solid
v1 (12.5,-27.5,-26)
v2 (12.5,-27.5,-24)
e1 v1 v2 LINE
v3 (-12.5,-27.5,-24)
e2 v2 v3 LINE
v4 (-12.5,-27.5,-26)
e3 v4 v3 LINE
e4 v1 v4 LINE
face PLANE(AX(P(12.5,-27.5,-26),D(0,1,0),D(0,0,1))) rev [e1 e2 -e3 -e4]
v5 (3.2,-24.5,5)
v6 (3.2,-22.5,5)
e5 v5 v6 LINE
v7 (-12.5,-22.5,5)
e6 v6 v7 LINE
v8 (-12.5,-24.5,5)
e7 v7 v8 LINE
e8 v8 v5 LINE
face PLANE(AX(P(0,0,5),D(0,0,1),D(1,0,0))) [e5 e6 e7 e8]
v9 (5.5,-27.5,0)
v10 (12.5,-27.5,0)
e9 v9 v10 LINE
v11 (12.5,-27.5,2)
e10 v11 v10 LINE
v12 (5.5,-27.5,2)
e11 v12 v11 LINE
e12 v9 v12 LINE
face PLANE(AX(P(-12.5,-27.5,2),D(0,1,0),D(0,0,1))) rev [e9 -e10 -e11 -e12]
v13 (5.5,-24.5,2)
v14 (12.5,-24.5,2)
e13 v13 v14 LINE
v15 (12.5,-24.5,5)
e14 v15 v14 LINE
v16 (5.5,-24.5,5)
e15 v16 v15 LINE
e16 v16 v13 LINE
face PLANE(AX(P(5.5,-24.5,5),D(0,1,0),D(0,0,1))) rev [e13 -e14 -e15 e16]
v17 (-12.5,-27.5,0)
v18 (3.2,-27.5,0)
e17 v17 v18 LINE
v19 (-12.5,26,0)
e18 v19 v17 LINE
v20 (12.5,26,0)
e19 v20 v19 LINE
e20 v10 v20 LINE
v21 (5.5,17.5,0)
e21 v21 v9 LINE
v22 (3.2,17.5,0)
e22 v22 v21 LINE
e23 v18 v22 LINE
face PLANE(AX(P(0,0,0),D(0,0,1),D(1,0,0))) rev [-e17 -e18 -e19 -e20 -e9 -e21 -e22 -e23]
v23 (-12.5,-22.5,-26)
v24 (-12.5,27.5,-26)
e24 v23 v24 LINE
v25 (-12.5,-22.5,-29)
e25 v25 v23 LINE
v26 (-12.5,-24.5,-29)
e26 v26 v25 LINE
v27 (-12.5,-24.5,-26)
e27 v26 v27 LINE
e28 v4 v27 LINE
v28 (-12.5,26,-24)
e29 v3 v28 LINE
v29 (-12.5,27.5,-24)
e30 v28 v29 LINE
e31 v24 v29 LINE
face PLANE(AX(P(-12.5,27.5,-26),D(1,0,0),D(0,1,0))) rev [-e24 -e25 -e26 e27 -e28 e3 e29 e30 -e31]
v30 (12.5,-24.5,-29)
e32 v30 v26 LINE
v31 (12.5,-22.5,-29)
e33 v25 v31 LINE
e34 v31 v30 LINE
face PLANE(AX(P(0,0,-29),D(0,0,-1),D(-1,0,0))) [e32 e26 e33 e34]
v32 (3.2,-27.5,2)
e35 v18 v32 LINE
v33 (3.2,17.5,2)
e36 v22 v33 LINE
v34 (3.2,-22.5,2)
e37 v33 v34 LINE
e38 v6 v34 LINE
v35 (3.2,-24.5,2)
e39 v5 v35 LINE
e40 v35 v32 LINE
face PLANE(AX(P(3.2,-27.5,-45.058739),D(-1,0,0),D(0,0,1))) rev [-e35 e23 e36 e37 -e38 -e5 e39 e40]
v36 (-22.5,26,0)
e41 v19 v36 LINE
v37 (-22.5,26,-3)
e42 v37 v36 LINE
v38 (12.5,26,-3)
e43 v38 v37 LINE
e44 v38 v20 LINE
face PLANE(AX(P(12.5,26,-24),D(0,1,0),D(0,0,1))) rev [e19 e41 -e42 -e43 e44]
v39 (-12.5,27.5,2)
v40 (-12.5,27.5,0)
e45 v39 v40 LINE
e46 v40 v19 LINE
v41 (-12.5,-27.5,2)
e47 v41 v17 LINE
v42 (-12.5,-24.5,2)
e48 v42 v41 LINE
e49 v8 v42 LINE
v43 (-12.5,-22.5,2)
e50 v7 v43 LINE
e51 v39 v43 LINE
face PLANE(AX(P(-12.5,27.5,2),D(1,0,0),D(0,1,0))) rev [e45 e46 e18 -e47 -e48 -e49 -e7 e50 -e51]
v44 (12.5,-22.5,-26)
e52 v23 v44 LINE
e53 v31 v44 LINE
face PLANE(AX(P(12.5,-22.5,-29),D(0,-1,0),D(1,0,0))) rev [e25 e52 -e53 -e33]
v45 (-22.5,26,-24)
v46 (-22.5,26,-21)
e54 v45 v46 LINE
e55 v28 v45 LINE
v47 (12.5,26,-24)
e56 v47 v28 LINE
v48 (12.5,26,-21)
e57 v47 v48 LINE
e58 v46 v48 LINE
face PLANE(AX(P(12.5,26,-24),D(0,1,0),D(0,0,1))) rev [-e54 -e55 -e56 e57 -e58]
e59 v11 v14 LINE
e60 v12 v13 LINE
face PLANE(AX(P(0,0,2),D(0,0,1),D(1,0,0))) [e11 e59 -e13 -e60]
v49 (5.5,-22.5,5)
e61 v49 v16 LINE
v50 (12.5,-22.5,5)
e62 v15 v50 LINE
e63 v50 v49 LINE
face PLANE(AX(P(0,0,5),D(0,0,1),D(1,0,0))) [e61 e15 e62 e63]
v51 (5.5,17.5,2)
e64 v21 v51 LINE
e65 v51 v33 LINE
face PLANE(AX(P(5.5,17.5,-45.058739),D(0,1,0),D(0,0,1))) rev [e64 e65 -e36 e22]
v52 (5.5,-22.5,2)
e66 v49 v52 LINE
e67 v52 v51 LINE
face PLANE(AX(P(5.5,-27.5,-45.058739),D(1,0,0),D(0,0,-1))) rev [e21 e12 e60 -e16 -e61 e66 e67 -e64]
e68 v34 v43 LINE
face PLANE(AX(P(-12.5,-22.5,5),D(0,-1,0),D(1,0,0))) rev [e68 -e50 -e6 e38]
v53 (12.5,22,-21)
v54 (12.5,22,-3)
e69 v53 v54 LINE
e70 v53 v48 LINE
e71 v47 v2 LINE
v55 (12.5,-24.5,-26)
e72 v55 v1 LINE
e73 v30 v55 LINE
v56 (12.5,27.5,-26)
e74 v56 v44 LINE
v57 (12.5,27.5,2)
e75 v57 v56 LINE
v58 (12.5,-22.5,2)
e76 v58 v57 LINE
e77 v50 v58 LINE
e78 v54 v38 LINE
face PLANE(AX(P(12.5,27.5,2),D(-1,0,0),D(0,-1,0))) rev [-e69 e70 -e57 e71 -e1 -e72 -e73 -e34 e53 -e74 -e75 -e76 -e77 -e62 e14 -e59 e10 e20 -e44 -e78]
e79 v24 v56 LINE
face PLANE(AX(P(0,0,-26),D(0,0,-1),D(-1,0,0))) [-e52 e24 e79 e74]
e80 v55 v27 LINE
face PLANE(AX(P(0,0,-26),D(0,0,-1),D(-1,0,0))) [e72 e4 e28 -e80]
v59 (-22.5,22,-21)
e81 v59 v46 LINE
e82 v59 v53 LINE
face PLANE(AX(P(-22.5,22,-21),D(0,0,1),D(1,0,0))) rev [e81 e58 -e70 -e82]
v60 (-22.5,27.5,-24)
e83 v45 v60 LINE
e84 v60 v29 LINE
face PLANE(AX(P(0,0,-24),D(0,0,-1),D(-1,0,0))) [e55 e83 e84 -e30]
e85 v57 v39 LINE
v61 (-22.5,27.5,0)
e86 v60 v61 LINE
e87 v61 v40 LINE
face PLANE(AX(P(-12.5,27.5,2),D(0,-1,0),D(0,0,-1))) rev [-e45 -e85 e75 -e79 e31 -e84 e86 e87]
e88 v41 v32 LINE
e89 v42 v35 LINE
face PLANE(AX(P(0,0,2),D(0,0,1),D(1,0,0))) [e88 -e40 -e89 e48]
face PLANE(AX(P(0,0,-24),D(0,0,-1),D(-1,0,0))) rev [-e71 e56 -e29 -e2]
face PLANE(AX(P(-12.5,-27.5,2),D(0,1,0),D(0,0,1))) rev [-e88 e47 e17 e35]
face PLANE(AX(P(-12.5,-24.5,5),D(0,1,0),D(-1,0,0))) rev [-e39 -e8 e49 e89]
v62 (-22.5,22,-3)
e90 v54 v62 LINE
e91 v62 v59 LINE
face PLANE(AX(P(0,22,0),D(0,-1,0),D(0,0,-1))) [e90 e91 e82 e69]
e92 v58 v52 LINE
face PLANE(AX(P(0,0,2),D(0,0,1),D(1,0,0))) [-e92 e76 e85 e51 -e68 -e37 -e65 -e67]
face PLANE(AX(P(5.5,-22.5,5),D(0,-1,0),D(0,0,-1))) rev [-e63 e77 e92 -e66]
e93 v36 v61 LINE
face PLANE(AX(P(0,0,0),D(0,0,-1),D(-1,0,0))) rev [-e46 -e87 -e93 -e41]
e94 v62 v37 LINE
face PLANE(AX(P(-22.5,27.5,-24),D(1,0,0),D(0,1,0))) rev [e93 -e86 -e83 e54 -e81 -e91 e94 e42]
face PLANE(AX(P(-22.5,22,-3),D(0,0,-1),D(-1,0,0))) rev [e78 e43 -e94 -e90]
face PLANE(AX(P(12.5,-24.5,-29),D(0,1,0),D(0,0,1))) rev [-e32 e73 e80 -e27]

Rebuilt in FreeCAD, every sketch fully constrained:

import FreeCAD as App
import Part
import Sketcher
from FreeCAD import Vector
Q = App.Units.Quantity

doc = App.newDocument("Part")
body = doc.addObject("PartDesign::Body", "Body")

# Sketch on XY plane
sketch1 = body.newObject("Sketcher::SketchObject", "Sketch")
sketch1.AttachmentSupport = (doc.getObject("XY_Plane"), [""])
sketch1.MapMode = "FlatFace"
sketch1.addGeometry(Part.LineSegment(Vector(-12, 28, 0), Vector(-12, -28, 0)), False)
sketch1.addGeometry(Part.LineSegment(Vector(-12, -28, 0), Vector(12, -28, 0)), False)
sketch1.addGeometry(Part.LineSegment(Vector(12, -28, 0), Vector(12, 28, 0)), False)
sketch1.addGeometry(Part.LineSegment(Vector(12, 28, 0), Vector(-12, 28, 0)), False)
sketch1.addConstraint(Sketcher.Constraint("Coincident", 0, 2, 1, 1))
sketch1.addConstraint(Sketcher.Constraint("Coincident", 1, 2, 2, 1))
sketch1.addConstraint(Sketcher.Constraint("Coincident", 2, 2, 3, 1))
sketch1.addConstraint(Sketcher.Constraint("Coincident", 3, 2, 0, 1))
sketch1.addConstraint(Sketcher.Constraint("Vertical", 0))
sketch1.addConstraint(Sketcher.Constraint("Horizontal", 1))
sketch1.addConstraint(Sketcher.Constraint("Vertical", 2))
sketch1.addConstraint(Sketcher.Constraint("Horizontal", 3))
sketch1.addConstraint(Sketcher.Constraint("Symmetric", 0, 2, 2, 2, -1, 1))
sketch1.addConstraint(Sketcher.Constraint("DistanceX", 1, 1, 1, 2, Q("25 mm")))
sketch1.addConstraint(Sketcher.Constraint("DistanceY", 0, 2, 0, 1, Q("55 mm")))
pad1 = body.newObject("PartDesign::Pad", "Pad")
pad1.Profile = sketch1
pad1.Length = 2

# Sketch on XY plane
sketch2 = body.newObject("Sketcher::SketchObject", "Sketch001")
sketch2.AttachmentSupport = (doc.getObject("XY_Plane"), [""])
sketch2.MapMode = "FlatFace"
sketch2.addGeometry(Part.LineSegment(Vector(12.5, 27.5, 0), Vector(12.5, 26, 0)), False)
sketch2.addGeometry(Part.LineSegment(Vector(12.5, 26, 0), Vector(-22.5, 26, 0)), False)
sketch2.addGeometry(Part.LineSegment(Vector(-22.5, 26, 0), Vector(-22.5, 27.5, 0)), False)
sketch2.addGeometry(Part.LineSegment(Vector(-22.5, 27.5, 0), Vector(12.5, 27.5, 0)), False)
sketch2.addConstraint(Sketcher.Constraint("Coincident", 0, 2, 1, 1))
sketch2.addConstraint(Sketcher.Constraint("Coincident", 1, 2, 2, 1))
sketch2.addConstraint(Sketcher.Constraint("Coincident", 2, 2, 3, 1))
sketch2.addConstraint(Sketcher.Constraint("Coincident", 3, 2, 0, 1))
sketch2.addConstraint(Sketcher.Constraint("Vertical", 0))
sketch2.addConstraint(Sketcher.Constraint("Horizontal", 1))
sketch2.addConstraint(Sketcher.Constraint("Vertical", 2))
sketch2.addConstraint(Sketcher.Constraint("Horizontal", 3))
sketch2.addConstraint(Sketcher.Constraint("DistanceX", 1, 2, 1, 1, Q("35 mm")))
sketch2.addConstraint(Sketcher.Constraint("DistanceY", 0, 2, 0, 1, Q("1.5 mm")))
sketch2.addConstraint(Sketcher.Constraint("DistanceY", -1, 1, 0, 2, Q("26 mm")))
sketch2.addConstraint(Sketcher.Constraint("DistanceX", -1, 1, 0, 2, Q("12.5 mm")))
pad2 = body.newObject("PartDesign::Pad", "Pad001")
pad2.Profile = sketch2
pad2.Length = 24
pad2.Reversed = True

# Sketch on XY plane
sketch3 = body.newObject("Sketcher::SketchObject", "Sketch002")
sketch3.AttachmentSupport = (doc.getObject("XY_Plane"), [""])
sketch3.MapMode = "FlatFace"
sketch3.AttachmentOffset = App.Placement(Vector(0, 0, -24), App.Rotation())
sketch3.addGeometry(Part.LineSegment(Vector(12, 28, 0), Vector(12, -28, 0)), False)
sketch3.addGeometry(Part.LineSegment(Vector(12, -28, 0), Vector(-12, -28, 0)), False)
sketch3.addGeometry(Part.LineSegment(Vector(-12, -28, 0), Vector(-12, 28, 0)), False)
sketch3.addGeometry(Part.LineSegment(Vector(-12, 28, 0), Vector(12, 28, 0)), False)
sketch3.addConstraint(Sketcher.Constraint("Coincident", 0, 2, 1, 1))
sketch3.addConstraint(Sketcher.Constraint("Coincident", 1, 2, 2, 1))
sketch3.addConstraint(Sketcher.Constraint("Coincident", 2, 2, 3, 1))
sketch3.addConstraint(Sketcher.Constraint("Coincident", 3, 2, 0, 1))
sketch3.addConstraint(Sketcher.Constraint("Vertical", 0))
sketch3.addConstraint(Sketcher.Constraint("Horizontal", 1))
sketch3.addConstraint(Sketcher.Constraint("Vertical", 2))
sketch3.addConstraint(Sketcher.Constraint("Horizontal", 3))
sketch3.addConstraint(Sketcher.Constraint("Symmetric", 0, 2, 2, 2, -1, 1))
sketch3.addConstraint(Sketcher.Constraint("DistanceX", 1, 2, 1, 1, Q("25 mm")))
sketch3.addConstraint(Sketcher.Constraint("DistanceY", 0, 2, 0, 1, Q("55 mm")))
pad3 = body.newObject("PartDesign::Pad", "Pad002")
pad3.Profile = sketch3
pad3.Length = 2
pad3.Reversed = True

# Sketch on XZ plane
sketch4 = body.newObject("Sketcher::SketchObject", "Sketch003")
sketch4.AttachmentSupport = (doc.getObject("XZ_Plane"), [""])
sketch4.MapMode = "FlatFace"
sketch4.AttachmentOffset = App.Placement(Vector(0, 0, -26), App.Rotation())
sketch4.addGeometry(Part.LineSegment(Vector(-22, -3, 0), Vector(-22, -21, 0)), False)
sketch4.addGeometry(Part.LineSegment(Vector(-22, -21, 0), Vector(12, -21, 0)), False)
sketch4.addGeometry(Part.LineSegment(Vector(12, -21, 0), Vector(12, -3, 0)), False)
sketch4.addGeometry(Part.LineSegment(Vector(12, -3, 0), Vector(-22, -3, 0)), False)
sketch4.addConstraint(Sketcher.Constraint("Coincident", 0, 2, 1, 1))
sketch4.addConstraint(Sketcher.Constraint("Coincident", 1, 2, 2, 1))
sketch4.addConstraint(Sketcher.Constraint("Coincident", 2, 2, 3, 1))
sketch4.addConstraint(Sketcher.Constraint("Coincident", 3, 2, 0, 1))
sketch4.addConstraint(Sketcher.Constraint("Vertical", 0))
sketch4.addConstraint(Sketcher.Constraint("Horizontal", 1))
sketch4.addConstraint(Sketcher.Constraint("Vertical", 2))
sketch4.addConstraint(Sketcher.Constraint("Horizontal", 3))
sketch4.addConstraint(Sketcher.Constraint("DistanceX", 1, 1, 1, 2, Q("35 mm")))
sketch4.addConstraint(Sketcher.Constraint("DistanceY", 0, 2, 0, 1, Q("18 mm")))
sketch4.addConstraint(Sketcher.Constraint("DistanceY", 0, 2, -1, 1, Q("21 mm")))
sketch4.addConstraint(Sketcher.Constraint("DistanceX", 0, 2, -1, 1, Q("22.5 mm")))
pad4 = body.newObject("PartDesign::Pad", "Pad003")
pad4.Profile = sketch4
pad4.Length = 4

# Sketch on XY plane
sketch5 = body.newObject("Sketcher::SketchObject", "Sketch004")
sketch5.AttachmentSupport = (doc.getObject("XY_Plane"), [""])
sketch5.MapMode = "FlatFace"
sketch5.AttachmentOffset = App.Placement(Vector(0, 0, 2), App.Rotation())
sketch5.addGeometry(Part.LineSegment(Vector(3.2, 17.5, 0), Vector(3.2, -27.5, 0)), False)
sketch5.addGeometry(Part.LineSegment(Vector(3.2, -27.5, 0), Vector(5.5, -27.5, 0)), False)
sketch5.addGeometry(Part.LineSegment(Vector(5.5, -27.5, 0), Vector(5.5, 17.5, 0)), False)
sketch5.addGeometry(Part.LineSegment(Vector(5.5, 17.5, 0), Vector(3.2, 17.5, 0)), False)
sketch5.addConstraint(Sketcher.Constraint("Coincident", 0, 2, 1, 1))
sketch5.addConstraint(Sketcher.Constraint("Coincident", 1, 2, 2, 1))
sketch5.addConstraint(Sketcher.Constraint("Coincident", 2, 2, 3, 1))
sketch5.addConstraint(Sketcher.Constraint("Coincident", 3, 2, 0, 1))
sketch5.addConstraint(Sketcher.Constraint("Vertical", 0))
sketch5.addConstraint(Sketcher.Constraint("Horizontal", 1))
sketch5.addConstraint(Sketcher.Constraint("Vertical", 2))
sketch5.addConstraint(Sketcher.Constraint("Horizontal", 3))
sketch5.addConstraint(Sketcher.Constraint("DistanceY", 0, 2, 0, 1, Q("45 mm")))
sketch5.addConstraint(Sketcher.Constraint("DistanceX", 1, 1, 1, 2, Q("2.3 mm")))
sketch5.addConstraint(Sketcher.Constraint("DistanceX", -1, 1, 0, 2, Q("3.2 mm")))
sketch5.addConstraint(Sketcher.Constraint("DistanceY", 0, 2, -1, 1, Q("27.5 mm")))
pocket1 = body.newObject("PartDesign::Pocket", "Pocket")
pocket1.Profile = sketch5
pocket1.Length = 2

# Sketch on XY plane
sketch6 = body.newObject("Sketcher::SketchObject", "Sketch005")
sketch6.AttachmentSupport = (doc.getObject("XY_Plane"), [""])
sketch6.MapMode = "FlatFace"
sketch6.AttachmentOffset = App.Placement(Vector(0, 0, 2), App.Rotation())
sketch6.addGeometry(Part.LineSegment(Vector(-12.5, -22.5, 0), Vector(-12.5, -24.5, 0)), False)
sketch6.addGeometry(Part.LineSegment(Vector(-12.5, -24.5, 0), Vector(3.2, -24.5, 0)), False)
sketch6.addGeometry(Part.LineSegment(Vector(3.2, -24.5, 0), Vector(3.2, -22.5, 0)), False)
sketch6.addGeometry(Part.LineSegment(Vector(3.2, -22.5, 0), Vector(-12.5, -22.5, 0)), False)
sketch6.addGeometry(Part.LineSegment(Vector(5.5, -22.5, 0), Vector(5.5, -24.5, 0)), False)
sketch6.addGeometry(Part.LineSegment(Vector(5.5, -24.5, 0), Vector(12.5, -24.5, 0)), False)
sketch6.addGeometry(Part.LineSegment(Vector(12.5, -24.5, 0), Vector(12.5, -22.5, 0)), False)
sketch6.addGeometry(Part.LineSegment(Vector(12.5, -22.5, 0), Vector(5.5, -22.5, 0)), False)
sketch6.addConstraint(Sketcher.Constraint("Coincident", 0, 2, 1, 1))
sketch6.addConstraint(Sketcher.Constraint("Coincident", 1, 2, 2, 1))
sketch6.addConstraint(Sketcher.Constraint("Coincident", 2, 2, 3, 1))
sketch6.addConstraint(Sketcher.Constraint("Coincident", 3, 2, 0, 1))
sketch6.addConstraint(Sketcher.Constraint("Coincident", 4, 2, 5, 1))
sketch6.addConstraint(Sketcher.Constraint("Coincident", 5, 2, 6, 1))
sketch6.addConstraint(Sketcher.Constraint("Coincident", 6, 2, 7, 1))
sketch6.addConstraint(Sketcher.Constraint("Coincident", 7, 2, 4, 1))
sketch6.addConstraint(Sketcher.Constraint("Vertical", 0))
sketch6.addConstraint(Sketcher.Constraint("Horizontal", 1))
sketch6.addConstraint(Sketcher.Constraint("Vertical", 2))
sketch6.addConstraint(Sketcher.Constraint("Horizontal", 3))
sketch6.addConstraint(Sketcher.Constraint("Vertical", 4))
sketch6.addConstraint(Sketcher.Constraint("Horizontal", 5))
sketch6.addConstraint(Sketcher.Constraint("Vertical", 6))
sketch6.addConstraint(Sketcher.Constraint("Horizontal", 7))
sketch6.addConstraint(Sketcher.Constraint("Symmetric", 0, 2, 5, 2, -2))
sketch6.addConstraint(Sketcher.Constraint("Horizontal", 3, 2, 6, 2))
sketch6.addConstraint(Sketcher.Constraint("DistanceX", 5, 1, 5, 2, Q("7 mm")))
sketch6.addConstraint(Sketcher.Constraint("DistanceY", 0, 2, 0, 1, Q("2 mm")))
sketch6.addConstraint(Sketcher.Constraint("DistanceX", 1, 1, 1, 2, Q("15.7 mm")))
sketch6.addConstraint(Sketcher.Constraint("DistanceX", 0, 2, 4, 2, Q("18 mm")))
sketch6.addConstraint(Sketcher.Constraint("DistanceY", 0, 2, -1, 1, Q("24.5 mm")))
pad5 = body.newObject("PartDesign::Pad", "Pad004")
pad5.Profile = sketch6
pad5.Length = 3

# Sketch on XY plane
sketch7 = body.newObject("Sketcher::SketchObject", "Sketch006")
sketch7.AttachmentSupport = (doc.getObject("XY_Plane"), [""])
sketch7.MapMode = "FlatFace"
sketch7.AttachmentOffset = App.Placement(Vector(0, 0, -26), App.Rotation())
sketch7.addGeometry(Part.LineSegment(Vector(12.5, -22.5, 0), Vector(12.5, -24.5, 0)), False)
sketch7.addGeometry(Part.LineSegment(Vector(12.5, -24.5, 0), Vector(-12.5, -24.5, 0)), False)
sketch7.addGeometry(Part.LineSegment(Vector(-12.5, -24.5, 0), Vector(-12.5, -22.5, 0)), False)
sketch7.addGeometry(Part.LineSegment(Vector(-12.5, -22.5, 0), Vector(12.5, -22.5, 0)), False)
sketch7.addConstraint(Sketcher.Constraint("Coincident", 0, 2, 1, 1))
sketch7.addConstraint(Sketcher.Constraint("Coincident", 1, 2, 2, 1))
sketch7.addConstraint(Sketcher.Constraint("Coincident", 2, 2, 3, 1))
sketch7.addConstraint(Sketcher.Constraint("Coincident", 3, 2, 0, 1))
sketch7.addConstraint(Sketcher.Constraint("Vertical", 0))
sketch7.addConstraint(Sketcher.Constraint("Horizontal", 1))
sketch7.addConstraint(Sketcher.Constraint("Vertical", 2))
sketch7.addConstraint(Sketcher.Constraint("Horizontal", 3))
sketch7.addConstraint(Sketcher.Constraint("DistanceX", 1, 2, 1, 1, Q("25 mm")))
sketch7.addConstraint(Sketcher.Constraint("DistanceY", 0, 2, 0, 1, Q("2 mm")))
sketch7.addConstraint(Sketcher.Constraint("DistanceX", -1, 1, 0, 2, Q("12.5 mm")))
sketch7.addConstraint(Sketcher.Constraint("DistanceY", 0, 2, -1, 1, Q("24.5 mm")))
pad6 = body.newObject("PartDesign::Pad", "Pad005")
pad6.Profile = sketch7
pad6.Length = 3
pad6.Reversed = True

doc.recompute()
